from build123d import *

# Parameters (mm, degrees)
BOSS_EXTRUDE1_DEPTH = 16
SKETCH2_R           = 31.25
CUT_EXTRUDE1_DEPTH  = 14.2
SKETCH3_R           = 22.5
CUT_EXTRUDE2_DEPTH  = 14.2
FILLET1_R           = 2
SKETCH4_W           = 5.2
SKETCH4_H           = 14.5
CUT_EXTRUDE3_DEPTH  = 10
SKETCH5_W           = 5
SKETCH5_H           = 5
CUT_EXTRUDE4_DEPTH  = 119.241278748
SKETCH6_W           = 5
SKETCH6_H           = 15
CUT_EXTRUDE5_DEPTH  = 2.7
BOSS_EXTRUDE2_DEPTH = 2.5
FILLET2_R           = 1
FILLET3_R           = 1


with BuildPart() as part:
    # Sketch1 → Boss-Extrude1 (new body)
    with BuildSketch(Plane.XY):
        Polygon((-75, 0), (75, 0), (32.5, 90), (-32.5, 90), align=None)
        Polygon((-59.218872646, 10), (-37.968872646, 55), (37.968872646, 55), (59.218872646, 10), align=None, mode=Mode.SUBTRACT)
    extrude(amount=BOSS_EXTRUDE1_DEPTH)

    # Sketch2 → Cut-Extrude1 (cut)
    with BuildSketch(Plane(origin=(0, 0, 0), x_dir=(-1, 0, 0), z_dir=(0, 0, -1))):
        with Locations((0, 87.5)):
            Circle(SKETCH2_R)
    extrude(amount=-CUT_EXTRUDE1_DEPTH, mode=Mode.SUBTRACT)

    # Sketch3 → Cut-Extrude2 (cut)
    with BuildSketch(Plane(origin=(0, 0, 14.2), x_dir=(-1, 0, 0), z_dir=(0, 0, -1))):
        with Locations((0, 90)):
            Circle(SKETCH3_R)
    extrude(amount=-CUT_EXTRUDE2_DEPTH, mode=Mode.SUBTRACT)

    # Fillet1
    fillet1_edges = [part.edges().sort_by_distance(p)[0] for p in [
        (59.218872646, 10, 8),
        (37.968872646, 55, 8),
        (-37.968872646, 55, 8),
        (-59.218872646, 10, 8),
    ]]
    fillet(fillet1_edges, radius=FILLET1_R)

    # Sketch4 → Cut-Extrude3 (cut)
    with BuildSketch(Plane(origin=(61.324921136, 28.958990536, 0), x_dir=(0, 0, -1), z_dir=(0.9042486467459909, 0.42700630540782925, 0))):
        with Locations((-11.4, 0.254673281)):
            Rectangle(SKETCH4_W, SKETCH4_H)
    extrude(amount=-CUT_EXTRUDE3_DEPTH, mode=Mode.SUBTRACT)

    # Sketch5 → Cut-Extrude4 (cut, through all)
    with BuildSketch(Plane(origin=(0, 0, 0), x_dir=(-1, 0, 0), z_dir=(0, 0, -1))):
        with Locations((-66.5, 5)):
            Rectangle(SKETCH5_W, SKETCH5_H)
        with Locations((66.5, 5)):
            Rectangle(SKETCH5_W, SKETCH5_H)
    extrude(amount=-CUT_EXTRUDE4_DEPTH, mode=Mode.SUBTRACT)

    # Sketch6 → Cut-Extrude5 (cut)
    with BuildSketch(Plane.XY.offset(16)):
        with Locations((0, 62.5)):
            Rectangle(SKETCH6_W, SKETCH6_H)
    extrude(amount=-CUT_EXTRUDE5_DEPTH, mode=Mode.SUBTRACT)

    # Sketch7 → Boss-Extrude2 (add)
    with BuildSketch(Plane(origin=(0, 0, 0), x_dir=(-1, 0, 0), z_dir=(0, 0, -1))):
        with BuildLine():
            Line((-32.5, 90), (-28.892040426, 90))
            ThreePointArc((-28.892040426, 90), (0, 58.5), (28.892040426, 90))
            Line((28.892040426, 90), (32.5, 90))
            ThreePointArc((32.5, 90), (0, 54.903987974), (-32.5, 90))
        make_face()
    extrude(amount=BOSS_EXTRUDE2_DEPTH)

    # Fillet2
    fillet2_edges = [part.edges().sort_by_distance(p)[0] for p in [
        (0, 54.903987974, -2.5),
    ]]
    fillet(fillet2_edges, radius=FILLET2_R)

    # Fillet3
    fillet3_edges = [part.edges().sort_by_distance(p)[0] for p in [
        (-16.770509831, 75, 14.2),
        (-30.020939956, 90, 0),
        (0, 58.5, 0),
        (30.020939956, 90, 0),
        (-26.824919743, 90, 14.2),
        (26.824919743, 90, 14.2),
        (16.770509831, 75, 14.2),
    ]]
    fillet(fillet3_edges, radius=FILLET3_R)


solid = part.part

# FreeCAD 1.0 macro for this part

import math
import FreeCAD as App
import Part
import Sketcher
from FreeCAD import Vector
Q = App.Units.Quantity


def edges_at(feature, points):
    """Names of the edges that pass closest to the given points."""
    edges = feature.Shape.Edges
    near = lambda p: min(range(len(edges)), key=lambda i: edges[i].distToShape(Part.Vertex(*p))[0])
    return sorted({f"Edge{near(p) + 1}" for p in points})

doc = App.newDocument("Part")
params = doc.addObject("Spreadsheet::Sheet", "Params")
for row, (alias, value) in enumerate([
    ("sketch1_width", "150 mm"),
    ("sketch1_width2", "65 mm"),
    ("pad1_length", "16 mm"),
    ("sketch2_diameter", "62.5 mm"),
    ("pocket1_length", "14.2 mm"),
    ("sketch3_diameter", "45 mm"),
    ("pocket2_length", "14.2 mm"),
    ("fillet_radius", "2 mm"),
    ("sketch4_width", "5.2 mm"),
    ("sketch4_height", "14.5 mm"),
    ("pocket3_length", "10 mm"),
    ("sketch5_width", "5 mm"),
    ("sketch6_width", "5 mm"),
    ("sketch6_height", "15 mm"),
    ("pocket5_length", "2.7 mm"),
    ("sketch7_radius", "29 mm"),
    ("pad2_length", "2.5 mm"),
    ("fillet2_radius", "1 mm"),
    ("fillet3_radius", "1 mm"),
], start=1):
    params.set(f"A{row}", alias)
    params.set(f"B{row}", "=" + value)
    params.setAlias(f"B{row}", alias)

body = doc.addObject("PartDesign::Body", "Body")

sketch1 = body.newObject("Sketcher::SketchObject", "Sketch")
sketch1.AttachmentSupport = (doc.getObject("XY_Plane"), [""])
sketch1.MapMode = "FlatFace"
sketch1.addGeometry([
    Part.LineSegment(Vector(-75, 0, 0), Vector(75, 0, 0)),
    Part.LineSegment(Vector(75, 0, 0), Vector(32.5, 90, 0)),
    Part.LineSegment(Vector(32.5, 90, 0), Vector(-32.5, 90, 0)),
    Part.LineSegment(Vector(-32.5, 90, 0), Vector(-75, 0, 0)),
    Part.LineSegment(Vector(59.218873, 10, 0), Vector(-59.218873, 10, 0)),
    Part.LineSegment(Vector(-59.218873, 10, 0), Vector(-37.968873, 55, 0)),
    Part.LineSegment(Vector(-37.968873, 55, 0), Vector(37.968873, 55, 0)),
    Part.LineSegment(Vector(37.968873, 55, 0), Vector(59.218873, 10, 0)),
], False)
sketch1.addConstraint([
    Sketcher.Constraint("Coincident", 0, 2, 1, 1),
    Sketcher.Constraint("Coincident", 1, 2, 2, 1),
    Sketcher.Constraint("Coincident", 2, 2, 3, 1),
    Sketcher.Constraint("Coincident", 3, 2, 0, 1),
    Sketcher.Constraint("Coincident", 4, 2, 5, 1),
    Sketcher.Constraint("Coincident", 5, 2, 6, 1),
    Sketcher.Constraint("Coincident", 6, 2, 7, 1),
    Sketcher.Constraint("Coincident", 7, 2, 4, 1),
    Sketcher.Constraint("Horizontal", 0),
    Sketcher.Constraint("Horizontal", 2),
    Sketcher.Constraint("Horizontal", 4),
    Sketcher.Constraint("Horizontal", 6),
    Sketcher.Constraint("Symmetric", 0, 2, 3, 2, -1, 1),
    Sketcher.Constraint("Parallel", 3, 5),
    Sketcher.Constraint("Parallel", 1, 7),
    Sketcher.Constraint("Equal", 1, 3),
    Sketcher.Constraint("DistanceX", 0, 1, 0, 2, Q("150 mm")),
    Sketcher.Constraint("DistanceX", 2, 2, 2, 1, Q("65 mm")),
    Sketcher.Constraint("DistanceY", -1, 1, 1, 2, Q("90 mm")),
    Sketcher.Constraint("DistanceY", -1, 1, 4, 2, Q("10 mm")),
    Sketcher.Constraint("DistanceY", -1, 1, 5, 2, Q("55 mm")),
    Sketcher.Constraint("DistanceX", 4, 2, 4, 1, Q("118.437745 mm")),
    Sketcher.Constraint("DistanceX", 4, 2, -1, 1, Q("59.218873 mm")),
])
sketch1.setExpression("Constraints[16]", "Params.sketch1_width")
sketch1.setExpression("Constraints[17]", "Params.sketch1_width2")
pad1 = body.newObject("PartDesign::Pad", "Pad")
pad1.Profile = sketch1
pad1.setExpression("Length", "Params.pad1_length")

sketch2 = body.newObject("Sketcher::SketchObject", "Sketch001")
sketch2.AttachmentSupport = (doc.getObject("XY_Plane"), [""])
sketch2.MapMode = "FlatFace"
sketch2.addGeometry(Part.Circle(Vector(0, 87.5, 0), Vector(0, 0, 1), 31.25), False)
sketch2.addConstraint([
    Sketcher.Constraint("PointOnObject", 0, 3, -2),
    Sketcher.Constraint("Diameter", 0, Q("62.5 mm")),
    Sketcher.Constraint("DistanceY", -1, 1, 0, 3, Q("87.5 mm")),
])
sketch2.setExpression("Constraints[1]", "Params.sketch2_diameter")
pocket1 = body.newObject("PartDesign::Pocket", "Pocket")
pocket1.Profile = sketch2
pocket1.setExpression("Length", "Params.pocket1_length")
pocket1.Reversed = True

sketch3 = body.newObject("Sketcher::SketchObject", "Sketch002")
sketch3.AttachmentSupport = (doc.getObject("XY_Plane"), [""])
sketch3.MapMode = "FlatFace"
sketch3.AttachmentOffset = App.Placement(Vector(0, 0, 14.2), App.Rotation())
sketch3.addGeometry(Part.Circle(Vector(0, 90, 0), Vector(0, 0, 1), 22.5), False)
sketch3.addConstraint([
    Sketcher.Constraint("PointOnObject", 0, 3, -2),
    Sketcher.Constraint("Diameter", 0, Q("45 mm")),
    Sketcher.Constraint("DistanceY", -1, 1, 0, 3, Q("90 mm")),
])
sketch3.setExpression("Constraints[1]", "Params.sketch3_diameter")
pocket2 = body.newObject("PartDesign::Pocket", "Pocket001")
pocket2.Profile = sketch3
pocket2.setExpression("Length", "Params.pocket2_length")
pocket2.Reversed = True
doc.recompute()

fillet = body.newObject("PartDesign::Fillet", "Fillet")
fillet.Base = (pocket2, edges_at(pocket2, [
    (59.219, 10, 8),
    (37.969, 55, 8),
    (-37.969, 55, 8),
    (-59.219, 10, 8),
]))
fillet.setExpression("Radius", "Params.fillet_radius")

sketch4 = body.newObject("Sketcher::SketchObject", "Sketch003")
sketch4.Placement = App.Placement(Vector(61.324921, 28.958991, 0), App.Rotation(Vector(0, 0, -1), Vector(-0.427006305, 0.904248647, 0), Vector(0.904248647, 0.427006305, 0), "ZXY"))
sketch4.addGeometry([
    Part.LineSegment(Vector(-14, 7.504673, 0), Vector(-14, -6.995327, 0)),
    Part.LineSegment(Vector(-14, -6.995327, 0), Vector(-8.8, -6.995327, 0)),
    Part.LineSegment(Vector(-8.8, -6.995327, 0), Vector(-8.8, 7.504673, 0)),
    Part.LineSegment(Vector(-8.8, 7.504673, 0), Vector(-14, 7.504673, 0)),
], False)
sketch4.addConstraint([
    Sketcher.Constraint("Coincident", 0, 2, 1, 1),
    Sketcher.Constraint("Coincident", 1, 2, 2, 1),
    Sketcher.Constraint("Coincident", 2, 2, 3, 1),
    Sketcher.Constraint("Coincident", 3, 2, 0, 1),
    Sketcher.Constraint("Vertical", 0),
    Sketcher.Constraint("Horizontal", 1),
    Sketcher.Constraint("Vertical", 2),
    Sketcher.Constraint("Horizontal", 3),
    Sketcher.Constraint("DistanceX", 1, 1, 1, 2, Q("5.2 mm")),
    Sketcher.Constraint("DistanceY", 0, 2, 0, 1, Q("14.5 mm")),
    Sketcher.Constraint("DistanceX", 0, 2, -1, 1, Q("14 mm")),
    Sketcher.Constraint("DistanceY", 0, 2, -1, 1, Q("6.995327 mm")),
])
sketch4.setExpression("Constraints[8]", "Params.sketch4_width")
sketch4.setExpression("Constraints[9]", "Params.sketch4_height")
pocket3 = body.newObject("PartDesign::Pocket", "Pocket002")
pocket3.Profile = sketch4
pocket3.setExpression("Length", "Params.pocket3_length")

sketch5 = body.newObject("Sketcher::SketchObject", "Sketch004")
sketch5.AttachmentSupport = (doc.getObject("XY_Plane"), [""])
sketch5.MapMode = "FlatFace"
sketch5.addGeometry([
    Part.LineSegment(Vector(69, 7.5, 0), Vector(69, 2.5, 0)),
    Part.LineSegment(Vector(69, 2.5, 0), Vector(64, 2.5, 0)),
    Part.LineSegment(Vector(64, 2.5, 0), Vector(64, 7.5, 0)),
    Part.LineSegment(Vector(64, 7.5, 0), Vector(69, 7.5, 0)),
    Part.LineSegment(Vector(-64, 7.5, 0), Vector(-64, 2.5, 0)),
    Part.LineSegment(Vector(-64, 2.5, 0), Vector(-69, 2.5, 0)),
    Part.LineSegment(Vector(-69, 2.5, 0), Vector(-69, 7.5, 0)),
    Part.LineSegment(Vector(-69, 7.5, 0), Vector(-64, 7.5, 0)),
], False)
sketch5.addConstraint([
    Sketcher.Constraint("Coincident", 0, 2, 1, 1),
    Sketcher.Constraint("Coincident", 1, 2, 2, 1),
    Sketcher.Constraint("Coincident", 2, 2, 3, 1),
    Sketcher.Constraint("Coincident", 3, 2, 0, 1),
    Sketcher.Constraint("Coincident", 4, 2, 5, 1),
    Sketcher.Constraint("Coincident", 5, 2, 6, 1),
    Sketcher.Constraint("Coincident", 6, 2, 7, 1),
    Sketcher.Constraint("Coincident", 7, 2, 4, 1),
    Sketcher.Constraint("Vertical", 0),
    Sketcher.Constraint("Horizontal", 1),
    Sketcher.Constraint("Vertical", 2),
    Sketcher.Constraint("Horizontal", 3),
    Sketcher.Constraint("Vertical", 4),
    Sketcher.Constraint("Horizontal", 5),
    Sketcher.Constraint("Vertical", 6),
    Sketcher.Constraint("Horizontal", 7),
    Sketcher.Constraint("Symmetric", 1, 2, 4, 2, -2),
    Sketcher.Constraint("Symmetric", 3, 2, 6, 2, -2),
    Sketcher.Constraint("Equal", 7, 0),
    Sketcher.Constraint("DistanceX", 1, 2, 1, 1, Q("5 mm")),
    Sketcher.Constraint("DistanceX", -1, 1, 0, 2, Q("69 mm")),
    Sketcher.Constraint("DistanceY", -1, 1, 0, 2, Q("2.5 mm")),
])
sketch5.setExpression("Constraints[19]", "Params.sketch5_width")
pocket4 = body.newObject("PartDesign::Pocket", "Pocket003")
pocket4.Profile = sketch5
pocket4.Type = "ThroughAll"
pocket4.Reversed = True

sketch6 = body.newObject("Sketcher::SketchObject", "Sketch005")
sketch6.AttachmentSupport = (doc.getObject("XY_Plane"), [""])
sketch6.MapMode = "FlatFace"
sketch6.AttachmentOffset = App.Placement(Vector(0, 0, 16), App.Rotation())
sketch6.addGeometry([
    Part.LineSegment(Vector(-2.5, 70, 0), Vector(-2.5, 55, 0)),
    Part.LineSegment(Vector(-2.5, 55, 0), Vector(2.5, 55, 0)),
    Part.LineSegment(Vector(2.5, 55, 0), Vector(2.5, 70, 0)),
    Part.LineSegment(Vector(2.5, 70, 0), Vector(-2.5, 70, 0)),
], False)
sketch6.addConstraint([
    Sketcher.Constraint("Coincident", 0, 2, 1, 1),
    Sketcher.Constraint("Coincident", 1, 2, 2, 1),
    Sketcher.Constraint("Coincident", 2, 2, 3, 1),
    Sketcher.Constraint("Coincident", 3, 2, 0, 1),
    Sketcher.Constraint("Vertical", 0),
    Sketcher.Constraint("Horizontal", 1),
    Sketcher.Constraint("Vertical", 2),
    Sketcher.Constraint("Horizontal", 3),
    Sketcher.Constraint("DistanceX", 1, 1, 1, 2, Q("5 mm")),
    Sketcher.Constraint("DistanceY", 0, 2, 0, 1, Q("15 mm")),
    Sketcher.Constraint("DistanceY", -1, 1, 0, 2, Q("55 mm")),
    Sketcher.Constraint("DistanceX", 0, 2, -1, 1, Q("2.5 mm")),
])
sketch6.setExpression("Constraints[8]", "Params.sketch6_width")
sketch6.setExpression("Constraints[9]", "Params.sketch6_height")
pocket5 = body.newObject("PartDesign::Pocket", "Pocket004")
pocket5.Profile = sketch6
pocket5.setExpression("Length", "Params.pocket5_length")

sketch7 = body.newObject("Sketcher::SketchObject", "Sketch006")
sketch7.AttachmentSupport = (doc.getObject("XY_Plane"), [""])
sketch7.MapMode = "FlatFace"
sketch7.addGeometry([
    Part.LineSegment(Vector(28.89204, 90, 0), Vector(32.5, 90, 0)),
    Part.ArcOfCircle(Part.Circle(Vector(0, 87.5, 0), Vector(0, 0, 1), 32.596012), math.radians(175.601295), math.radians(364.398705)),
    Part.LineSegment(Vector(-32.5, 90, 0), Vector(-28.89204, 90, 0)),
    Part.ArcOfCircle(Part.Circle(Vector(0, 87.5, 0), Vector(0, 0, 1), 29), math.radians(175.05457), math.radians(364.94543)),
], False)
sketch7.addConstraint([
    Sketcher.Constraint("Coincident", 0, 2, 1, 2),
    Sketcher.Constraint("Coincident", 1, 1, 2, 1),
    Sketcher.Constraint("Coincident", 2, 2, 3, 1),
    Sketcher.Constraint("Coincident", 3, 2, 0, 1),
    Sketcher.Constraint("Horizontal", 0),
    Sketcher.Constraint("Horizontal", 2),
    Sketcher.Constraint("Coincident", 3, 3, 1, 3),
    Sketcher.Constraint("Symmetric", 0, 2, 1, 1, -2),
    Sketcher.Constraint("Radius", 3, Q("29 mm")),
    Sketcher.Constraint("DistanceY", -1, 1, 0, 2, Q("90 mm")),
    Sketcher.Constraint("DistanceX", 1, 1, 0, 2, Q("65 mm")),
    Sketcher.Constraint("DistanceY", -1, 1, 1, 3, Q("87.5 mm")),
])
sketch7.setExpression("Constraints[8]", "Params.sketch7_radius")
pad2 = body.newObject("PartDesign::Pad", "Pad001")
pad2.Profile = sketch7
pad2.setExpression("Length", "Params.pad2_length")
pad2.Reversed = True
doc.recompute()

fillet2 = body.newObject("PartDesign::Fillet", "Fillet001")
fillet2.Base = (pad2, edges_at(pad2, [(0, 54.904, -2.5)]))
fillet2.setExpression("Radius", "Params.fillet2_radius")
doc.recompute()

fillet3 = body.newObject("PartDesign::Fillet", "Fillet002")
fillet3.Base = (fillet2, edges_at(fillet2, [
    (-16.771, 75, 14.2),
    (-30.021, 90, 0),
    (0, 58.5, 0),
    (30.021, 90, 0),
    (-26.825, 90, 14.2),
    (26.825, 90, 14.2),
    (16.771, 75, 14.2),
]))
fillet3.setExpression("Radius", "Params.fillet3_radius")

doc.recompute()
